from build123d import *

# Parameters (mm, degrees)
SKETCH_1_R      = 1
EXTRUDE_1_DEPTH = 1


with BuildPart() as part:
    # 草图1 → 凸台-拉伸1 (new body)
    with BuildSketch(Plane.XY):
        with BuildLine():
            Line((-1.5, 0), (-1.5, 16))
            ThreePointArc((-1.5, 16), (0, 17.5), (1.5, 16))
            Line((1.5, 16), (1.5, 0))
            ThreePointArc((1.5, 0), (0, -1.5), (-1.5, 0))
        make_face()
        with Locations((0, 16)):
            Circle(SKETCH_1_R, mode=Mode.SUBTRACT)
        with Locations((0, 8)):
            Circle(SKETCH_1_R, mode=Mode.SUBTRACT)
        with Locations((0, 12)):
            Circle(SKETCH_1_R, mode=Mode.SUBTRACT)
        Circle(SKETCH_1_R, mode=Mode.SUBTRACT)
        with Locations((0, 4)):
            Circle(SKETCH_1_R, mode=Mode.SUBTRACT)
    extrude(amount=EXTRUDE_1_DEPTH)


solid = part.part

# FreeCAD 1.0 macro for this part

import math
import FreeCAD as App
import Part
import Sketcher

V = App.Vector
Q = App.Units.Quantity

doc = App.newDocument("Part")
body = doc.addObject("PartDesign::Body", "Body")

# Sketch on XY plane
sketch1 = body.newObject("Sketcher::SketchObject", "Sketch")
sketch1.AttachmentSupport = (doc.getObject("XY_Plane"), [""])
sketch1.MapMode = "FlatFace"
sketch1.addGeometry([
    Part.LineSegment(V(-1.5, 16, 0), V(-1.5, 0, 0)),  # 0
    Part.ArcOfCircle(Part.Circle(V(0, 0, 0), V(0, 0, 1), 1.5), math.radians(180), math.radians(360)),  # 1
    Part.LineSegment(V(1.5, 0, 0), V(1.5, 16, 0)),  # 2
    Part.ArcOfCircle(Part.Circle(V(0, 16, 0), V(0, 0, 1), 1.5), math.radians(0), math.radians(180)),  # 3
    Part.Circle(V(0, 0, 0), V(0, 0, 1), 1),  # 4
    Part.Circle(V(0, 4, 0), V(0, 0, 1), 1),  # 5
    Part.Circle(V(0, 8, 0), V(0, 0, 1), 1),  # 6
    Part.Circle(V(0, 12, 0), V(0, 0, 1), 1),  # 7
    Part.Circle(V(0, 16, 0), V(0, 0, 1), 1),  # 8
], False)
sketch1.addConstraint([
    Sketcher.Constraint("Tangent", 0, 2, 1, 1),
    Sketcher.Constraint("Tangent", 1, 2, 2, 1),
    Sketcher.Constraint("Tangent", 2, 2, 3, 1),
    Sketcher.Constraint("Tangent", 3, 2, 0, 1),
    Sketcher.Constraint("Vertical", 0),
    Sketcher.Constraint("Vertical", 2),
    Sketcher.Constraint("Coincident", 1, 3, -1, 1),
    Sketcher.Constraint("Coincident", 4, 3, -1, 1),
    Sketcher.Constraint("Coincident", 8, 3, 3, 3),
    Sketcher.Constraint("Equal", 4, 5),
    Sketcher.Constraint("Equal", 5, 6),
    Sketcher.Constraint("Equal", 6, 7),
    Sketcher.Constraint("Equal", 7, 8),
    Sketcher.Constraint("PointOnObject", 5, 3, -2),
    Sketcher.Constraint("PointOnObject", 6, 3, -2),
    Sketcher.Constraint("PointOnObject", 7, 3, -2),
    Sketcher.Constraint("Diameter", 4, Q("2 mm")),
    Sketcher.Constraint("Radius", 1, Q("1.5 mm")),
    Sketcher.Constraint("DistanceY", 0, 2, 0, 1, Q("16 mm")),
    Sketcher.Constraint("DistanceY", -1, 1, 5, 3, Q("4 mm")),
    Sketcher.Constraint("DistanceY", -1, 1, 6, 3, Q("8 mm")),
    Sketcher.Constraint("DistanceY", -1, 1, 7, 3, Q("12 mm")),
])
pad1 = body.newObject("PartDesign::Pad", "Pad")
pad1.Profile = sketch1
pad1.Length = 1

doc.recompute()
